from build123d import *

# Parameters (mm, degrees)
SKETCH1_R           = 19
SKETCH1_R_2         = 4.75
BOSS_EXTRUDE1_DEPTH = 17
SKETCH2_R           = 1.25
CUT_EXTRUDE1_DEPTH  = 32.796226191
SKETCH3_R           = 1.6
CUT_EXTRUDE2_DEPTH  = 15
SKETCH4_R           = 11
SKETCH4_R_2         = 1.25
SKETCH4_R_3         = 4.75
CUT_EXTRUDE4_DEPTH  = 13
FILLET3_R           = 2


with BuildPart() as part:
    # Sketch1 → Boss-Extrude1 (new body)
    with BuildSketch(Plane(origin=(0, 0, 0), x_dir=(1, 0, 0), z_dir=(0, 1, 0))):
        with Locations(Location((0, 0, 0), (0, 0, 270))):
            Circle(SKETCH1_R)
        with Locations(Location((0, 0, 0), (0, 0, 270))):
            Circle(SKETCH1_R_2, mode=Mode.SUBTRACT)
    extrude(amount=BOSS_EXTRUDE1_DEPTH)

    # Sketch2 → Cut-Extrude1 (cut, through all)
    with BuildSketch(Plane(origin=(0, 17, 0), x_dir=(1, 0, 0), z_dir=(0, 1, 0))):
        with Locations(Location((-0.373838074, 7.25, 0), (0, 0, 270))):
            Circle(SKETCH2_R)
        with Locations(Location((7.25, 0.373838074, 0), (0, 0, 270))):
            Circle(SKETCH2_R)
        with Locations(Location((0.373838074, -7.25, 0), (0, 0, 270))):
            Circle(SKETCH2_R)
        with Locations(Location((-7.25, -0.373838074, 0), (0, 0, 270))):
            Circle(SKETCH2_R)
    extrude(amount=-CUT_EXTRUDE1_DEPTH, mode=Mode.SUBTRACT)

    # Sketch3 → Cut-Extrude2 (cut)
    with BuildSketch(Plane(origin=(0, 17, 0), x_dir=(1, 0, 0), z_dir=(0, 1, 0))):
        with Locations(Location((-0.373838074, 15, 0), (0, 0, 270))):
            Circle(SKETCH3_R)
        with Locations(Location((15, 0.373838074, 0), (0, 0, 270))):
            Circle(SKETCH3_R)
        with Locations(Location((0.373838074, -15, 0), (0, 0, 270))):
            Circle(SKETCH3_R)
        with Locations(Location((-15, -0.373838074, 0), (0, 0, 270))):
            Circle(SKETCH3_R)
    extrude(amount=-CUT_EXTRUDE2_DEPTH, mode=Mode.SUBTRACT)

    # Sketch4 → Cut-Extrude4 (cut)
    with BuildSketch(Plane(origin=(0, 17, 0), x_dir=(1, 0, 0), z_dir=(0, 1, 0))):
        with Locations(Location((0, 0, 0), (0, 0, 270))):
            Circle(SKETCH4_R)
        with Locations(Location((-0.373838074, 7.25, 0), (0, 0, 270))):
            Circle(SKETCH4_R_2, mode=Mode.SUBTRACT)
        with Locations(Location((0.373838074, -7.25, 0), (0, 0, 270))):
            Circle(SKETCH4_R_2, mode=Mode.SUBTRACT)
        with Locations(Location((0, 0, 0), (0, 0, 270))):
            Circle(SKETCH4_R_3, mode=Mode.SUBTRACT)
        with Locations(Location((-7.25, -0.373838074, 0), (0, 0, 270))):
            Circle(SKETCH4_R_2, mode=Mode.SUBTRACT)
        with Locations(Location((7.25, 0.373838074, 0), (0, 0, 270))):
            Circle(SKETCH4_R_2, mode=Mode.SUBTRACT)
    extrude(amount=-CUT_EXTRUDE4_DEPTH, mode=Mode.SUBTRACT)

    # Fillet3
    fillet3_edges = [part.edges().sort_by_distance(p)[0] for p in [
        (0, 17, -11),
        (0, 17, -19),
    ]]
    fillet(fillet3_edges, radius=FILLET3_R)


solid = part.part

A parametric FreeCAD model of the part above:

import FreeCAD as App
import Part
import Sketcher
from FreeCAD import Vector


def edges_at(feature, points):
    """Names of the edges that pass closest to the given points."""
    edges = feature.Shape.Edges
    near = lambda p: min(range(len(edges)), key=lambda i: edges[i].distToShape(Part.Vertex(*p))[0])
    return sorted({f"Edge{near(p) + 1}" for p in points})

doc = App.newDocument("Part")
body = doc.addObject("PartDesign::Body", "Body")

# Sketch on XZ plane
sketch1 = body.newObject("Sketcher::SketchObject", "Sketch")
sketch1.AttachmentSupport = (doc.getObject("XZ_Plane"), [""])
sketch1.MapMode = "FlatFace"
sketch1.addGeometry([
    Part.Circle(Vector(0, 0, 0), Vector(0, 0, 1), 19),
    Part.Circle(Vector(0, 0, 0), Vector(0, 0, 1), 4.75),
], False)
sketch1.addConstraint([
    Sketcher.Constraint("Coincident", 0, 3, -1, 1),
    Sketcher.Constraint("Coincident", 1, 3, -1, 1),
    Sketcher.Constraint("Diameter", 0, 38.0),
    Sketcher.Constraint("Diameter", 1, 9.5),
])
pad1 = body.newObject("PartDesign::Pad", "Pad")
pad1.Profile = sketch1
pad1.Length = 17
pad1.Reversed = True

# Sketch on XZ plane
sketch2 = body.newObject("Sketcher::SketchObject", "Sketch001")
sketch2.AttachmentSupport = (doc.getObject("XZ_Plane"), [""])
sketch2.MapMode = "FlatFace"
sketch2.AttachmentOffset = App.Placement(Vector(0, 0, -17), App.Rotation())
sketch2.addGeometry([
    Part.Circle(Vector(-0.373838, -7.25, 0), Vector(0, 0, 1), 1.25),
    Part.Circle(Vector(7.25, -0.373838, 0), Vector(0, 0, 1), 1.25),
    Part.Circle(Vector(0.373838, 7.25, 0), Vector(0, 0, 1), 1.25),
    Part.Circle(Vector(-7.25, 0.373838, 0), Vector(0, 0, 1), 1.25),
], False)
sketch2.addConstraint([
    Sketcher.Constraint("Equal", 0, 1),
    Sketcher.Constraint("Equal", 1, 2),
    Sketcher.Constraint("Equal", 2, 3),
    Sketcher.Constraint("Symmetric", 0, 3, 2, 3, -1, 1),
    Sketcher.Constraint("Symmetric", 1, 3, 3, 3, -1, 1),
    Sketcher.Constraint("Diameter", 0, 2.5),
    Sketcher.Constraint("DistanceY", 0, 3, 2, 3, 14.5),
    Sketcher.Constraint("DistanceX", 3, 3, 1, 3, 14.5),
    Sketcher.Constraint("DistanceX", 0, 3, -1, 1, 0.373838),
    Sketcher.Constraint("DistanceY", 1, 3, -1, 1, 0.373838),
])
pocket1 = body.newObject("PartDesign::Pocket", "Pocket")
pocket1.Profile = sketch2
pocket1.Type = "ThroughAll"
pocket1.Reversed = True

# Sketch on XZ plane
sketch3 = body.newObject("Sketcher::SketchObject", "Sketch002")
sketch3.AttachmentSupport = (doc.getObject("XZ_Plane"), [""])
sketch3.MapMode = "FlatFace"
sketch3.AttachmentOffset = App.Placement(Vector(0, 0, -17), App.Rotation())
sketch3.addGeometry([
    Part.Circle(Vector(-0.373838, -15, 0), Vector(0, 0, 1), 1.6),
    Part.Circle(Vector(15, -0.373838, 0), Vector(0, 0, 1), 1.6),
    Part.Circle(Vector(0.373838, 15, 0), Vector(0, 0, 1), 1.6),
    Part.Circle(Vector(-15, 0.373838, 0), Vector(0, 0, 1), 1.6),
], False)
sketch3.addConstraint([
    Sketcher.Constraint("Equal", 0, 1),
    Sketcher.Constraint("Equal", 1, 2),
    Sketcher.Constraint("Equal", 2, 3),
    Sketcher.Constraint("Symmetric", 0, 3, 2, 3, -1, 1),
    Sketcher.Constraint("Symmetric", 1, 3, 3, 3, -1, 1),
    Sketcher.Constraint("Diameter", 0, 3.2),
    Sketcher.Constraint("DistanceY", 0, 3, -1, 1, 15.0),
    Sketcher.Constraint("DistanceX", -1, 1, 1, 3, 15.0),
    Sketcher.Constraint("DistanceX", 0, 3, -1, 1, 0.373838),
    Sketcher.Constraint("DistanceY", 1, 3, -1, 1, 0.373838),
])
pocket2 = body.newObject("PartDesign::Pocket", "Pocket001")
pocket2.Profile = sketch3
pocket2.Length = 15
pocket2.Reversed = True

# Sketch on XZ plane
sketch4 = body.newObject("Sketcher::SketchObject", "Sketch003")
sketch4.AttachmentSupport = (doc.getObject("XZ_Plane"), [""])
sketch4.MapMode = "FlatFace"
sketch4.AttachmentOffset = App.Placement(Vector(0, 0, -17), App.Rotation())
sketch4.addGeometry([
    Part.Circle(Vector(0, 0, 0), Vector(0, 0, 1), 11),  # 0
    Part.Circle(Vector(-0.373838, -7.25, 0), Vector(0, 0, 1), 1.25),  # 1
    Part.Circle(Vector(-7.25, 0.373838, 0), Vector(0, 0, 1), 1.25),  # 2
    Part.Circle(Vector(7.25, -0.373838, 0), Vector(0, 0, 1), 1.25),  # 3
    Part.Circle(Vector(0, 0, 0), Vector(0, 0, 1), 4.75),  # 4
    Part.Circle(Vector(0.373838, 7.25, 0), Vector(0, 0, 1), 1.25),  # 5
], False)
sketch4.addConstraint([
    Sketcher.Constraint("Coincident", 0, 3, -1, 1),
    Sketcher.Constraint("Coincident", 4, 3, -1, 1),
    Sketcher.Constraint("Equal", 1, 2),
    Sketcher.Constraint("Equal", 2, 3),
    Sketcher.Constraint("Equal", 3, 5),
    Sketcher.Constraint("Symmetric", 2, 3, 3, 3, -1, 1),
    Sketcher.Constraint("Symmetric", 1, 3, 5, 3, -1, 1),
    Sketcher.Constraint("Diameter", 0, 22.0),
    Sketcher.Constraint("Diameter", 1, 2.5),
    Sketcher.Constraint("Diameter", 4, 9.5),
    Sketcher.Constraint("DistanceX", 2, 3, 3, 3, 14.5),
    Sketcher.Constraint("DistanceY", 1, 3, 5, 3, 14.5),
    Sketcher.Constraint("DistanceX", 1, 3, -1, 1, 0.373838),
    Sketcher.Constraint("DistanceY", -1, 1, 2, 3, 0.373838),
])
pocket3 = body.newObject("PartDesign::Pocket", "Pocket002")
pocket3.Profile = sketch4
pocket3.Length = 13
pocket3.Reversed = True
doc.recompute()

fillet = body.newObject("PartDesign::Fillet", "Fillet")
fillet.Base = (pocket3, edges_at(pocket3, [(0, 17, -11), (0, 17, -19)]))
fillet.Radius = 2

doc.recompute()
